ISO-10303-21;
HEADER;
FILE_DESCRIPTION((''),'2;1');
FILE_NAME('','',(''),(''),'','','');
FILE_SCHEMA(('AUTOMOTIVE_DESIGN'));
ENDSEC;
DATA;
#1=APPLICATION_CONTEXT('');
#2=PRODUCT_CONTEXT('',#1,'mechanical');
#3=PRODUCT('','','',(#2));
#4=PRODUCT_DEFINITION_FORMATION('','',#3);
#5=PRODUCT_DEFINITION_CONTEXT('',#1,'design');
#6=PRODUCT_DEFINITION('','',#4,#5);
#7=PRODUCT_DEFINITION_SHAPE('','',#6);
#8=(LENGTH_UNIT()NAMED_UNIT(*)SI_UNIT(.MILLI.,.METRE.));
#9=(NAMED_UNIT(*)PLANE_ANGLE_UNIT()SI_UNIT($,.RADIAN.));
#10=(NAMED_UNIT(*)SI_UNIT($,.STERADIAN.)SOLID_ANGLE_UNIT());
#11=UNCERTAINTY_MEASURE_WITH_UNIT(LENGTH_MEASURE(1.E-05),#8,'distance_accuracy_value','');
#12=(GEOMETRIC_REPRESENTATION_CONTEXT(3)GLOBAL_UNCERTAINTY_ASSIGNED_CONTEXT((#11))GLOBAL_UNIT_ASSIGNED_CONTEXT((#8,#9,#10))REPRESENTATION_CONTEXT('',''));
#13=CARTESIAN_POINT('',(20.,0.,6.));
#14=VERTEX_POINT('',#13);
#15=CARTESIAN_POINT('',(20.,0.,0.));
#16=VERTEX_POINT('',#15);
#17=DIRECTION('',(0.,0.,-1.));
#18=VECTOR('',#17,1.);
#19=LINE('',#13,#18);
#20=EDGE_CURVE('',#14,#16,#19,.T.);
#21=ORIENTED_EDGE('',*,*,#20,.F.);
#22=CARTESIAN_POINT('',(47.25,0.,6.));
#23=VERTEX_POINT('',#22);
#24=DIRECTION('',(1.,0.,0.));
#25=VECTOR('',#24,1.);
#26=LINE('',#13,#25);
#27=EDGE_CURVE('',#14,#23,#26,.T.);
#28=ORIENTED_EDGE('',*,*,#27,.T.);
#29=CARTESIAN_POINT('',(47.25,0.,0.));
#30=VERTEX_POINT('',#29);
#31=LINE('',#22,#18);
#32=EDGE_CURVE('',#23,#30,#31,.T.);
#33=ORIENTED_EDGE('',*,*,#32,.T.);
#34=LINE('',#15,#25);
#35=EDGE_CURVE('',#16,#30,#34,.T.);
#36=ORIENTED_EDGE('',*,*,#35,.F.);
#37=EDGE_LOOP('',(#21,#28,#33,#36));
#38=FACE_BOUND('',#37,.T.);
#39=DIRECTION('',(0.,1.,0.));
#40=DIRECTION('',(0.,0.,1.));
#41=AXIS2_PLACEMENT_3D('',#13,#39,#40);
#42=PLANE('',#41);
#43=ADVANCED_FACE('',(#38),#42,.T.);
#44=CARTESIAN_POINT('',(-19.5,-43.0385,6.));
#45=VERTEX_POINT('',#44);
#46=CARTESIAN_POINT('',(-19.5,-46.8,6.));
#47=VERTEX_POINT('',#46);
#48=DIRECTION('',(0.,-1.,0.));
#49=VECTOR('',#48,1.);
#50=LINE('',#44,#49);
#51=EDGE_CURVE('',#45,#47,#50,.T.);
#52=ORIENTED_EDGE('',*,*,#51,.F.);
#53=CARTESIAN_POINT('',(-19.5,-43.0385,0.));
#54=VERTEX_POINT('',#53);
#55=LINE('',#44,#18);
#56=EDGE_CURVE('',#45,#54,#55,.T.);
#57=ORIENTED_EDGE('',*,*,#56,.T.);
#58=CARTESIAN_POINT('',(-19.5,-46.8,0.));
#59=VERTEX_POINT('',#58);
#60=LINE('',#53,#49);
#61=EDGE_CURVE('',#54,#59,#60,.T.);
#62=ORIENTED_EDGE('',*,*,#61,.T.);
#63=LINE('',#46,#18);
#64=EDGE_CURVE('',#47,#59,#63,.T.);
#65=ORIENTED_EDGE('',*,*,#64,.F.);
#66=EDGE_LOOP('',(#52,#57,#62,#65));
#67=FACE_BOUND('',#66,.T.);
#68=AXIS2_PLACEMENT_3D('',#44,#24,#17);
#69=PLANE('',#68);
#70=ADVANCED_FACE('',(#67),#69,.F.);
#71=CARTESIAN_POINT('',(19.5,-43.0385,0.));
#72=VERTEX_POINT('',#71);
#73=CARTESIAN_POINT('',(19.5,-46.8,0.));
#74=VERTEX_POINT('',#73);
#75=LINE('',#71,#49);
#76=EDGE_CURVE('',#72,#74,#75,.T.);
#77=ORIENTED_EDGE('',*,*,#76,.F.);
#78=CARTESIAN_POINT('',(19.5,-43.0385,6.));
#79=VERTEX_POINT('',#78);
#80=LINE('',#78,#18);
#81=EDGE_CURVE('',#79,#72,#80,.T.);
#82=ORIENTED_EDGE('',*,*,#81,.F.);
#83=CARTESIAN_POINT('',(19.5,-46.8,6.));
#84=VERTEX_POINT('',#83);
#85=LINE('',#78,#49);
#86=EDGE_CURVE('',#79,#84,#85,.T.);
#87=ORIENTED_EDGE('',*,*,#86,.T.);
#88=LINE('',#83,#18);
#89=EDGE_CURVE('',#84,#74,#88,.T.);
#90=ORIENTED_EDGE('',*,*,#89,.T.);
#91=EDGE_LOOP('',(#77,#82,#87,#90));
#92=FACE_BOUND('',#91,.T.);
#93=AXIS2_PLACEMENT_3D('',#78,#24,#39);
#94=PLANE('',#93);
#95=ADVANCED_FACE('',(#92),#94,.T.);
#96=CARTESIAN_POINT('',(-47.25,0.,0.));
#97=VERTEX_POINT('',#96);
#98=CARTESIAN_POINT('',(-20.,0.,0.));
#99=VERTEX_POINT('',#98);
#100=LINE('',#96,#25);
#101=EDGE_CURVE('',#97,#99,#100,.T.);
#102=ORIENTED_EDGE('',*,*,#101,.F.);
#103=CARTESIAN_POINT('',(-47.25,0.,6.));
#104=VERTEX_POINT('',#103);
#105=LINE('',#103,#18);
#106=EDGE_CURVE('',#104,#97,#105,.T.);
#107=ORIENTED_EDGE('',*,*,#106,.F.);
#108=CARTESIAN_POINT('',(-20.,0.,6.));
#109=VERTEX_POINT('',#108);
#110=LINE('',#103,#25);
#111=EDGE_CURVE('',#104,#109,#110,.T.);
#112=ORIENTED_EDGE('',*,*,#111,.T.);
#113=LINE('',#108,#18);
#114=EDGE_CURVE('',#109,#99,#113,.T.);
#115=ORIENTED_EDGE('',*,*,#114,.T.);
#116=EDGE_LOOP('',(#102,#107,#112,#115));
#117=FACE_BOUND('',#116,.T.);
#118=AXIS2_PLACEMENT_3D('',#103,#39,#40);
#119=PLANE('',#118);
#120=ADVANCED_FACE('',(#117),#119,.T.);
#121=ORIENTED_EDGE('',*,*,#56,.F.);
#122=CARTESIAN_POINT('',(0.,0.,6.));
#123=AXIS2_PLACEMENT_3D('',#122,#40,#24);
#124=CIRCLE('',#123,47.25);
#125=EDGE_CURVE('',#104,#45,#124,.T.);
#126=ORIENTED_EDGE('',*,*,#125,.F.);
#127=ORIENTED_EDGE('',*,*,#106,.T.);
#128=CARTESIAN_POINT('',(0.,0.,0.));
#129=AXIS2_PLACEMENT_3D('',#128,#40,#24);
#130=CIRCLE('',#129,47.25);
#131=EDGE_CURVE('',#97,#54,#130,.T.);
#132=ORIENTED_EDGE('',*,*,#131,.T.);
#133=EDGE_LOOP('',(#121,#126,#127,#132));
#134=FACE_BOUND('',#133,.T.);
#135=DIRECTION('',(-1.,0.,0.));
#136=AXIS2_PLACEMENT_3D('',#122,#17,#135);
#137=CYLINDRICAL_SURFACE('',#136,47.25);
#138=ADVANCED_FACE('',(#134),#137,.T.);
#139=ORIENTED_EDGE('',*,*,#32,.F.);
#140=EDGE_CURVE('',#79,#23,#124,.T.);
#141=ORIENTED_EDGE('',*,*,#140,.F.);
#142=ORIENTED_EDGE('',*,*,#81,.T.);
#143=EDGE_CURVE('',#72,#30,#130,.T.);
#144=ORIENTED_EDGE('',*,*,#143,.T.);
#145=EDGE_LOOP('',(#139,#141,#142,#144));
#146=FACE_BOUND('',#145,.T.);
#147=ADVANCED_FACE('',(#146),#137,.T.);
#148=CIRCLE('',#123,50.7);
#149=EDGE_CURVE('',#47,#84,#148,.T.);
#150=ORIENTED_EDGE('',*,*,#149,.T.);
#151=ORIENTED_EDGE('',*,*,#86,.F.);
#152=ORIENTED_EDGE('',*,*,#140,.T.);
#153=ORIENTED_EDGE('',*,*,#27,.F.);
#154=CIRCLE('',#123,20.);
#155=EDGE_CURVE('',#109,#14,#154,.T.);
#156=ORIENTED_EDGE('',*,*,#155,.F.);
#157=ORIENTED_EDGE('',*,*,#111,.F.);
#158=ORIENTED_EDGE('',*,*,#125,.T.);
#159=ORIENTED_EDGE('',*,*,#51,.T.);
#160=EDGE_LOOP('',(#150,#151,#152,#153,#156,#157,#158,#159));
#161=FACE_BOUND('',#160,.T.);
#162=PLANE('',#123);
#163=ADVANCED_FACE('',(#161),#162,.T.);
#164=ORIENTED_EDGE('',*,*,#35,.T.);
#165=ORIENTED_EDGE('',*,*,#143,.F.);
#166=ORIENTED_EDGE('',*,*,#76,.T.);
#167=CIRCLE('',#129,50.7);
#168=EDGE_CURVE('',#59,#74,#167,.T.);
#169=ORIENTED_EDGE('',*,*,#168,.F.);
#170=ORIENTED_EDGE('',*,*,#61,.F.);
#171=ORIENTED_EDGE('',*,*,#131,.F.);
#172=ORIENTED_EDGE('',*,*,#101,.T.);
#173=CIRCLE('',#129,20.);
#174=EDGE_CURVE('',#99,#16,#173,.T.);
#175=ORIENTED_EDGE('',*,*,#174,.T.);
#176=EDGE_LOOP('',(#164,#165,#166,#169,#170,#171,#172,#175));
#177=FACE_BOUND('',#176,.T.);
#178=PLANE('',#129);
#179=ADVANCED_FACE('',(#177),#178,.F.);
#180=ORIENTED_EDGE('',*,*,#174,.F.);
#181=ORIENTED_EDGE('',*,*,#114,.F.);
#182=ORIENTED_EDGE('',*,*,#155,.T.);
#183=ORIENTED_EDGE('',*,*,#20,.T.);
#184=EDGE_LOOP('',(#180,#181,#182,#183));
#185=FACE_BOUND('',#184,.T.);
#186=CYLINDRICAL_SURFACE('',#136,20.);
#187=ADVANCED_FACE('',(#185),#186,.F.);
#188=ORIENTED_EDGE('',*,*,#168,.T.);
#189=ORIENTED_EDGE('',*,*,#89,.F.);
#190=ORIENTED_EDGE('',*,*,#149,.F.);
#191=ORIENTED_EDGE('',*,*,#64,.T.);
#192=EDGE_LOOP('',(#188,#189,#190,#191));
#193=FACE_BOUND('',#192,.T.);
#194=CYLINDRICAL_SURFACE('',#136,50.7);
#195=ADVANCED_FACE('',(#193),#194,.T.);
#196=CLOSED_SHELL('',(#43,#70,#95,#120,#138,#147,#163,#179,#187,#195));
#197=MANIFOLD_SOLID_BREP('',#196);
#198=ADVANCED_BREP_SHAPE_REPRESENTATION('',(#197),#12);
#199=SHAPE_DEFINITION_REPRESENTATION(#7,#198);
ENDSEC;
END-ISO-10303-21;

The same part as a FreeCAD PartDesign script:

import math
import FreeCAD as App
import Part
import Sketcher

V = App.Vector

doc = App.newDocument("Part")
params = doc.addObject("Spreadsheet::Sheet", "Params")
for row, (alias, value) in enumerate([
    ("sketch1_radius", "20 mm"),
    ("sketch1_radius2", "50.7 mm"),
    ("sketch1_radius3", "47.25 mm"),
    ("pad1_length", "6 mm"),
], start=1):
    params.set(f"A{row}", alias)
    params.set(f"B{row}", "=" + value)
    params.setAlias(f"B{row}", alias)

body = doc.addObject("PartDesign::Body", "Body")

sketch1 = doc.addObject("Sketcher::SketchObject", "Sketch")
body.addObject(sketch1)
sketch1.AttachmentSupport = (doc.XY_Plane, [""])
sketch1.MapMode = "FlatFace"
sketch1.addGeometry([
    Part.LineSegment(V(-20, 0, 0), V(-47.2, 0, 0)),
    Part.ArcOfCircle(Part.Circle(V(0, 0, 0), V(0, 0, 1), 47.2), math.radians(180), math.radians(246)),
    Part.LineSegment(V(-19.5, -43, 0), V(-19.5, -46.8, 0)),
    Part.ArcOfCircle(Part.Circle(V(0, 0, 0), V(0, 0, 1), 50.7), math.radians(-113), math.radians(-67)),
    Part.LineSegment(V(19.5, -46.8, 0), V(19.5, -43, 0)),
    Part.ArcOfCircle(Part.Circle(V(0, 0, 0), V(0, 0, 1), 47.2), math.radians(-66), math.radians(0)),
    Part.LineSegment(V(47.2, 0, 0), V(20, 0, 0)),
    Part.ArcOfCircle(Part.Circle(V(0, 0, 0), V(0, 0, 1), 20), math.radians(180), math.radians(360)),
], False)
sketch1.addConstraint([
    Sketcher.Constraint("Coincident", 0, 2, 1, 1),
    Sketcher.Constraint("Coincident", 1, 2, 2, 1),
    Sketcher.Constraint("Coincident", 2, 2, 3, 1),
    Sketcher.Constraint("Coincident", 3, 2, 4, 1),
    Sketcher.Constraint("Coincident", 4, 2, 5, 1),
    Sketcher.Constraint("Coincident", 5, 2, 6, 1),
    Sketcher.Constraint("Coincident", 6, 2, 7, 2),
    Sketcher.Constraint("Coincident", 7, 1, 0, 1),
    Sketcher.Constraint("Horizontal", 0),
    Sketcher.Constraint("Vertical", 2),
    Sketcher.Constraint("Vertical", 4),
    Sketcher.Constraint("Horizontal", 6),
    Sketcher.Constraint("Coincident", 1, 3, -1, 1),
    Sketcher.Constraint("Coincident", 3, 3, -1, 1),
    Sketcher.Constraint("Coincident", 5, 3, -1, 1),
    Sketcher.Constraint("Coincident", 7, 3, -1, 1),
    Sketcher.Constraint("Equal", 1, 5),
    Sketcher.Constraint("PointOnObject", 0, 2, -1),
    Sketcher.Constraint("PointOnObject", 5, 2, -1),
    Sketcher.Constraint("Horizontal", 2, 2, 3, 2),
    Sketcher.Constraint("Radius", 7, 20.0),
    Sketcher.Constraint("Radius", 3, 50.7),
    Sketcher.Constraint("Radius", 1, 47.25),
    Sketcher.Constraint("DistanceX", 2, 2, 3, 2, 39.0),
])
sketch1.setExpression("Constraints[20]", "Params.sketch1_radius")
sketch1.setExpression("Constraints[21]", "Params.sketch1_radius2")
sketch1.setExpression("Constraints[22]", "Params.sketch1_radius3")
pad1 = doc.addObject("PartDesign::Pad", "Pad")
body.addObject(pad1)
pad1.Profile = sketch1
pad1.setExpression("Length", "Params.pad1_length")

doc.recompute()
